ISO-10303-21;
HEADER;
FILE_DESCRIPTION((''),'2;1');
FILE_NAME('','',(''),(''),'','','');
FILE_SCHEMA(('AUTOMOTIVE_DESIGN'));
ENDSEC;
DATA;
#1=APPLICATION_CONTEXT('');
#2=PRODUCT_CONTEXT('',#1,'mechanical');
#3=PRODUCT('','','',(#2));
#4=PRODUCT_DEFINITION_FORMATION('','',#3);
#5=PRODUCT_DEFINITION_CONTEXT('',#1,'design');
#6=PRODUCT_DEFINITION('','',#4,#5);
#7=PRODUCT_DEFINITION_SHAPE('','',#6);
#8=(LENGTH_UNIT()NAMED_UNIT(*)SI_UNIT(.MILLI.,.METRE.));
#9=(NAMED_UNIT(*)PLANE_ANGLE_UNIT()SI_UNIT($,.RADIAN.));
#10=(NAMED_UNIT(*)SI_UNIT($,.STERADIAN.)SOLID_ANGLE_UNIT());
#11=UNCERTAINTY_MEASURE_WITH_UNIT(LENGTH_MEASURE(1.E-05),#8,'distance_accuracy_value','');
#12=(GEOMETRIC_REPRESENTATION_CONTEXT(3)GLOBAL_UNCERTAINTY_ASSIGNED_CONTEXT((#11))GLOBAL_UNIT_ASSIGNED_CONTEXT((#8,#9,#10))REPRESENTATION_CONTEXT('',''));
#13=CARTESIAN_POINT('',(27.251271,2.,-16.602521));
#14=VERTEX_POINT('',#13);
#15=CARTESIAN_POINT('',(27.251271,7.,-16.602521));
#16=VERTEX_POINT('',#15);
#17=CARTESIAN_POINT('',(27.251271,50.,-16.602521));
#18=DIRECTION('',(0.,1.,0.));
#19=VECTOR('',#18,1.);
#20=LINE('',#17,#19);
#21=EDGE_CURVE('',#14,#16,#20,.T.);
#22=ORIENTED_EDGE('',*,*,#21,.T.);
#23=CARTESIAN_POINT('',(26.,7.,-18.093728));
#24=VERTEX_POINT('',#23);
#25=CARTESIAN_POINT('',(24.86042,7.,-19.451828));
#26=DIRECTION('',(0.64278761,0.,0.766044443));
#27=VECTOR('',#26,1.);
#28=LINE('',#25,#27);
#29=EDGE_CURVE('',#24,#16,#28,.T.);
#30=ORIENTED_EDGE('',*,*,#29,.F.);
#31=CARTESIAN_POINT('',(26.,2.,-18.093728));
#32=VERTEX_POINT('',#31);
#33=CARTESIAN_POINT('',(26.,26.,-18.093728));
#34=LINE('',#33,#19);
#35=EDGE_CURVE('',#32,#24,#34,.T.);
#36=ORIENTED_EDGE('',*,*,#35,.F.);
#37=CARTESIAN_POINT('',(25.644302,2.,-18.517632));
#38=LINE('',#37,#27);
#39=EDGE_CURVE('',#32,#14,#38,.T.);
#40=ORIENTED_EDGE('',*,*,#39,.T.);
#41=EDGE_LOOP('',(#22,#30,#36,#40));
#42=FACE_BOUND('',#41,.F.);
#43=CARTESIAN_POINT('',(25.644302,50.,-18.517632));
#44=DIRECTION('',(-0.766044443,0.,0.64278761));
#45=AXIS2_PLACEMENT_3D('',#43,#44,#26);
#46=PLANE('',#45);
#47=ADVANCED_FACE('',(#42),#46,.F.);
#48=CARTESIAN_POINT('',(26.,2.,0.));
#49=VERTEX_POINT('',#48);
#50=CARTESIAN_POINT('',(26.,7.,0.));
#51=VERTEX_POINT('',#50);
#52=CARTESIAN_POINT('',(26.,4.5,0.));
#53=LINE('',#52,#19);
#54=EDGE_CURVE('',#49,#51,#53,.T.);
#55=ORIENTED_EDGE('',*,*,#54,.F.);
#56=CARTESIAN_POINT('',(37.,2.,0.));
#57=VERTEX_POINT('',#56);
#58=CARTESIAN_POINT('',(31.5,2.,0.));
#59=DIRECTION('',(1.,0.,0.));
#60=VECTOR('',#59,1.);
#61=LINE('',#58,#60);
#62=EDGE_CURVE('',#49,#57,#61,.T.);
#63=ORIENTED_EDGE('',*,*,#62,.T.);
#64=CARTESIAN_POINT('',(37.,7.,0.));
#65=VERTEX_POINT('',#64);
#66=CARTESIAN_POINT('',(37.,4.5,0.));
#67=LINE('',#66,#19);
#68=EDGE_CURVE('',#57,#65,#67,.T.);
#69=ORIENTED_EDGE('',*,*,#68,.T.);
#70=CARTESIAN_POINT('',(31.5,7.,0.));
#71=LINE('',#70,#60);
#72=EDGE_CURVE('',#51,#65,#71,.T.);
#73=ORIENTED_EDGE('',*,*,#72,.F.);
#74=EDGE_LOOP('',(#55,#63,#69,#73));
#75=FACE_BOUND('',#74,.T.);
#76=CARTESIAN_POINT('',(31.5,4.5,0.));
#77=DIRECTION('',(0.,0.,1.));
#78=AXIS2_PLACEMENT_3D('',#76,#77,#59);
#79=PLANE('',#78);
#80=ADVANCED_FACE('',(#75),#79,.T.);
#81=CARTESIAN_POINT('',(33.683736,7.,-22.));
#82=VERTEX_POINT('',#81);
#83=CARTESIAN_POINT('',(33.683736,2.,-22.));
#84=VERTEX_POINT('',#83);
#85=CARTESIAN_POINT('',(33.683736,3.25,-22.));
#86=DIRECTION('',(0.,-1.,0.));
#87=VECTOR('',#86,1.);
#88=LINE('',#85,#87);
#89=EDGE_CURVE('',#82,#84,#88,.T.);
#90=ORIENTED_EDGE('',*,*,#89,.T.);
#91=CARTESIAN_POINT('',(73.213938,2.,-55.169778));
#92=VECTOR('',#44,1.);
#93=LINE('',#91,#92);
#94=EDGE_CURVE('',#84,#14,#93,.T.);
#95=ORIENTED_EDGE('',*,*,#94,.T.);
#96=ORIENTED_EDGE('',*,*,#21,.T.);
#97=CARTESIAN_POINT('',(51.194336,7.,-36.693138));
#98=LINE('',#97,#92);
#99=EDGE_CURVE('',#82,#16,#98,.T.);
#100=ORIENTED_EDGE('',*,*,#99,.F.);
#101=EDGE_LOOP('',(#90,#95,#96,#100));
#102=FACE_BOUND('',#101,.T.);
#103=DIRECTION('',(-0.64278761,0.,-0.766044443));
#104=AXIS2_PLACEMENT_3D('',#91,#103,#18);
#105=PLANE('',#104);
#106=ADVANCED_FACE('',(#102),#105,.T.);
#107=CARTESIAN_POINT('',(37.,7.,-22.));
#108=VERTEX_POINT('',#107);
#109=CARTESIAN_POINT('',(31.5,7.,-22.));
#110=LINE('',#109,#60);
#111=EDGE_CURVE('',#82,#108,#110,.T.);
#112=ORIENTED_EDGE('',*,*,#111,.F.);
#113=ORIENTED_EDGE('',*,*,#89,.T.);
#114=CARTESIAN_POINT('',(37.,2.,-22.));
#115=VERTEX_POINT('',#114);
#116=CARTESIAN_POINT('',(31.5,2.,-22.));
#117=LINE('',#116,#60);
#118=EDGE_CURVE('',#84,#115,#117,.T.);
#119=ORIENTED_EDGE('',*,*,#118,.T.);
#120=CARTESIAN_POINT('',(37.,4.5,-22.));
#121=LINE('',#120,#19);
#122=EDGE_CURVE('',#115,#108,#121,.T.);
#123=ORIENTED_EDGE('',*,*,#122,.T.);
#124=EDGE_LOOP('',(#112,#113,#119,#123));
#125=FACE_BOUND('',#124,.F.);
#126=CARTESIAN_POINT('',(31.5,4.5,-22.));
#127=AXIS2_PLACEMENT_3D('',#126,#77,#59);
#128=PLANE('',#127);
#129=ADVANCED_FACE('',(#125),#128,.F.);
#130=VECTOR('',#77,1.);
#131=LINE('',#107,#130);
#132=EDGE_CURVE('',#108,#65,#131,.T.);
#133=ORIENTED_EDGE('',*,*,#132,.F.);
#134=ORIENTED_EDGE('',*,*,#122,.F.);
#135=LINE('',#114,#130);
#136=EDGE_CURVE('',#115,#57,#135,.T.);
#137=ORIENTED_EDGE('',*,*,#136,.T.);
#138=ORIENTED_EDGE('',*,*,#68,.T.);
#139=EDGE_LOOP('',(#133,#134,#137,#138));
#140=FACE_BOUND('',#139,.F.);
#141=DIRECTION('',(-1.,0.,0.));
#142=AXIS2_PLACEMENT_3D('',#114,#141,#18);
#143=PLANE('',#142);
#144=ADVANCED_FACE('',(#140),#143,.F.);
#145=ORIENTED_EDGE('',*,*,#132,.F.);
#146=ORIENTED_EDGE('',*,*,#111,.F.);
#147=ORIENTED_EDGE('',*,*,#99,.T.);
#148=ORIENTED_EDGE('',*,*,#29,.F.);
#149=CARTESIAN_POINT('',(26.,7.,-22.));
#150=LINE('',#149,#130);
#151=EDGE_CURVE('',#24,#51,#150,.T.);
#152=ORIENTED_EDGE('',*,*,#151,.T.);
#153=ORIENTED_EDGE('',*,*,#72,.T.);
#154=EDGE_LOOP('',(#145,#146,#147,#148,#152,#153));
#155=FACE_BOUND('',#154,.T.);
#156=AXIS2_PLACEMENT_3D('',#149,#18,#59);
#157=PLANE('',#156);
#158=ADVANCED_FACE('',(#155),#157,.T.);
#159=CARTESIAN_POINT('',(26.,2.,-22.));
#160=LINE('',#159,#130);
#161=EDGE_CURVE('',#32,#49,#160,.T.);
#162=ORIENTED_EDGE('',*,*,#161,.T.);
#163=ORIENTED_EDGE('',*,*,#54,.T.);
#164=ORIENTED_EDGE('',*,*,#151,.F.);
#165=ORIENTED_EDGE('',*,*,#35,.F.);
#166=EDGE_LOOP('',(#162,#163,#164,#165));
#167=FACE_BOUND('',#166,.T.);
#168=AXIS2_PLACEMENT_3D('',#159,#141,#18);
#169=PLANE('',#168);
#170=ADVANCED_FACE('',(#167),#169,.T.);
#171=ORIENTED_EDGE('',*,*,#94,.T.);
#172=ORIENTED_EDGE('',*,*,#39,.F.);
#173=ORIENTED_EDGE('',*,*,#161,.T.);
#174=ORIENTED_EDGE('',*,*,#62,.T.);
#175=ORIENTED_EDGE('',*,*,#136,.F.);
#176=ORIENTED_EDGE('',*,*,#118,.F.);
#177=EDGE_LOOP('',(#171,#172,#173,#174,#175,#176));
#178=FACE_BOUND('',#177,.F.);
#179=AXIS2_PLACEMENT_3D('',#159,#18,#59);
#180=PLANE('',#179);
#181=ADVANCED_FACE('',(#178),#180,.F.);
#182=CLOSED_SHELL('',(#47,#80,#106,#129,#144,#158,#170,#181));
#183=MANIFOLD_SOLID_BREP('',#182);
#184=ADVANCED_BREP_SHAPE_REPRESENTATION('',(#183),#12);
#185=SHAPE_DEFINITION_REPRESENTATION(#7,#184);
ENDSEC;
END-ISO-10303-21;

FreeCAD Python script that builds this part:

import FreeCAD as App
import Part
import Sketcher
from FreeCAD import Vector


def add_polygon(sketch, points):
    """Adds a closed chain of lines whose ends are joined by coincident constraints."""
    first, n = sketch.GeometryCount, len(points)
    for a, b in zip(points, points[1:] + points[:1]):
        sketch.addGeometry(Part.LineSegment(App.Vector(*a, 0), App.Vector(*b, 0)), False)
    for i in range(n):
        sketch.addConstraint(Sketcher.Constraint("Coincident", first + i, 2, first + (i + 1) % n, 1))

doc = App.newDocument("Part")
body = doc.addObject("PartDesign::Body", "Body")

# Sketch on XY plane
sketch1 = doc.addObject("Sketcher::SketchObject", "Sketch")
body.addObject(sketch1)
sketch1.AttachmentSupport = (doc.XY_Plane, [""])
sketch1.MapMode = "FlatFace"
add_polygon(sketch1, [(0, 96), (0, 0), (5, 0), (5, 96)])  # lines 0-3
sketch1.addConstraint(Sketcher.Constraint("Vertical", 0))
sketch1.addConstraint(Sketcher.Constraint("Horizontal", 1))
sketch1.addConstraint(Sketcher.Constraint("Vertical", 2))
sketch1.addConstraint(Sketcher.Constraint("Horizontal", 3))
sketch1.addConstraint(Sketcher.Constraint("Coincident", 0, 2, -1, 1))
sketch1.addConstraint(Sketcher.Constraint("DistanceX", 1, 1, 1, 2, 5.0))
sketch1.addConstraint(Sketcher.Constraint("DistanceY", 0, 2, 0, 1, 96.0))
pad1 = doc.addObject("PartDesign::Pad", "Pad")
body.addObject(pad1)
pad1.Profile = sketch1
pad1.Length = 60
body2 = doc.addObject("PartDesign::Body", "Body001")
doc.recompute()

body.Placement = App.Placement(Vector(70, 2, -59), App.Rotation(Vector(0, 1, 0), 310))
boolean = doc.addObject("PartDesign::Boolean", "Boolean")
body2.addObject(boolean)
boolean.Type = "Fuse"
boolean.addObjects([body])
body3 = doc.addObject("PartDesign::Body", "Body002")

# Sketch on XY plane
sketch2 = doc.addObject("Sketcher::SketchObject", "Sketch001")
body3.addObject(sketch2)
sketch2.AttachmentSupport = (doc.getObject("XY_Plane002"), [""])
sketch2.MapMode = "FlatFace"
sketch2.AttachmentOffset = App.Placement(Vector(0, 0, -22), App.Rotation())
add_polygon(sketch2, [(26, 7), (26, 2), (37, 2), (37, 7)])  # lines 0-3
sketch2.addConstraint(Sketcher.Constraint("Vertical", 0))
sketch2.addConstraint(Sketcher.Constraint("Horizontal", 1))
sketch2.addConstraint(Sketcher.Constraint("Vertical", 2))
sketch2.addConstraint(Sketcher.Constraint("Horizontal", 3))
sketch2.addConstraint(Sketcher.Constraint("DistanceX", 1, 1, 1, 2, 11.0))
sketch2.addConstraint(Sketcher.Constraint("DistanceY", 0, 2, 0, 1, 5.0))
sketch2.addConstraint(Sketcher.Constraint("DistanceX", -1, 1, 0, 2, 26.0))
sketch2.addConstraint(Sketcher.Constraint("DistanceY", -1, 1, 0, 2, 2.0))
pad2 = doc.addObject("PartDesign::Pad", "Pad001")
body3.addObject(pad2)
pad2.Profile = sketch2
pad2.Length = 22
doc.recompute()

boolean2 = doc.addObject("PartDesign::Boolean", "Boolean001")
body3.addObject(boolean2)
boolean2.Type = "Cut"
boolean2.addObjects([body2])

doc.recompute()
